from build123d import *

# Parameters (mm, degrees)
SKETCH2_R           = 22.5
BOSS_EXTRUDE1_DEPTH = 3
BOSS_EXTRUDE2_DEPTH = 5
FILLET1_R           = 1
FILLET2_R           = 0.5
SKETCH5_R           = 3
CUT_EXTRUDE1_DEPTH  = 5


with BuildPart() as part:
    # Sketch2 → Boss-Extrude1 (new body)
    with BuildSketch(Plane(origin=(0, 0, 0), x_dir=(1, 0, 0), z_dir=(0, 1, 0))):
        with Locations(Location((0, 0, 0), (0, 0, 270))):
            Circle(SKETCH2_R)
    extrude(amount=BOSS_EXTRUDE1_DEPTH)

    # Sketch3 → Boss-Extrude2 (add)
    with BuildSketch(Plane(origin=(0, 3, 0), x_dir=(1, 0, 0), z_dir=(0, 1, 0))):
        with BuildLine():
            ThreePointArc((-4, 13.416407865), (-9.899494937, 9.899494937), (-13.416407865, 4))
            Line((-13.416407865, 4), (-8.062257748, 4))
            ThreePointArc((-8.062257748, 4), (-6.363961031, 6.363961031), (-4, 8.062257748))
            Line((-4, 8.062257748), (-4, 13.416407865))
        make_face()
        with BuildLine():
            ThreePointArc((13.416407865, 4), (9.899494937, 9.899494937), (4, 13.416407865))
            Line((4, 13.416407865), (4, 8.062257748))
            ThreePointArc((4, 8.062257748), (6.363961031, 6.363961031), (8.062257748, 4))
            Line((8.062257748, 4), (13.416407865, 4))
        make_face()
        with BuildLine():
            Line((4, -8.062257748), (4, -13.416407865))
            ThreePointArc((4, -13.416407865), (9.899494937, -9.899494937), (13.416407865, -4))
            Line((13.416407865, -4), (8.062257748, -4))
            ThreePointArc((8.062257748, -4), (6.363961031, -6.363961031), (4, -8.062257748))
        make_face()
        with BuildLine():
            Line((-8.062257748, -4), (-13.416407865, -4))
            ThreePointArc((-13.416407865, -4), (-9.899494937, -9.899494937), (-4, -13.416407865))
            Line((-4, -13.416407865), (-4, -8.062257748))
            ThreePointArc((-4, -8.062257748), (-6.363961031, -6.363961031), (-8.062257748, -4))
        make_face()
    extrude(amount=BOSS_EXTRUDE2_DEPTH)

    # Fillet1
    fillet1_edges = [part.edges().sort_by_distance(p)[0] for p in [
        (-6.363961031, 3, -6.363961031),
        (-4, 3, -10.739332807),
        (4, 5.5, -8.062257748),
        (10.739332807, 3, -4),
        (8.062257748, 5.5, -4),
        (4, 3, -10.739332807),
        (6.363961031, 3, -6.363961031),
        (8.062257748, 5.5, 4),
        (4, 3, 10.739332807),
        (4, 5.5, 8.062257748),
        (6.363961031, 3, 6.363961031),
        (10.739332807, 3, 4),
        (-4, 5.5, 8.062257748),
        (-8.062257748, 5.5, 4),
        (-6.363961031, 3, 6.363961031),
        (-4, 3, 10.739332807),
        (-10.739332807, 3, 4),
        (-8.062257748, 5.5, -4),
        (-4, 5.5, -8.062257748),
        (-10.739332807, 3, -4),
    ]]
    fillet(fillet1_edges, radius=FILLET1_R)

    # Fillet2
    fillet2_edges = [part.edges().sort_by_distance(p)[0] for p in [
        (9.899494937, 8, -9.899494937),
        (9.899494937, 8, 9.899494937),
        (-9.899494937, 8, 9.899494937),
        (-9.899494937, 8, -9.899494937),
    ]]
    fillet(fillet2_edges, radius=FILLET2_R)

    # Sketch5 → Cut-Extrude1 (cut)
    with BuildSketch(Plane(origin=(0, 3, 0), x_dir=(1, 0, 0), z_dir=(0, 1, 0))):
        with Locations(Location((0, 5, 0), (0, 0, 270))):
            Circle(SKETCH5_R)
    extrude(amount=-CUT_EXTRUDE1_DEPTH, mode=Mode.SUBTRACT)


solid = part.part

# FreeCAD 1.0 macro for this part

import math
import FreeCAD as App
import Part
import Sketcher
Q = App.Units.Quantity


def edges_at(feature, points):
    """Names of the edges that pass closest to the given points."""
    edges = feature.Shape.Edges
    near = lambda p: min(range(len(edges)), key=lambda i: edges[i].distToShape(Part.Vertex(*p))[0])
    return sorted({f"Edge{near(p) + 1}" for p in points})

doc = App.newDocument("Part")
params = doc.addObject("Spreadsheet::Sheet", "Params")
for row, (alias, value) in enumerate([
    ("sketch1_diameter", "45 mm"),
    ("pad1_length", "3 mm"),
    ("sketch2_radius", "14 mm"),
    ("sketch2_radius2", "9 mm"),
    ("pad2_length", "5 mm"),
    ("fillet_radius", "1 mm"),
    ("fillet2_radius", "0.5 mm"),
    ("sketch3_diameter", "6 mm"),
    ("pocket1_length", "5 mm"),
], start=1):
    params.set(f"A{row}", alias)
    params.set(f"B{row}", "=" + value)
    params.setAlias(f"B{row}", alias)

body = doc.addObject("PartDesign::Body", "Body")

# Sketch on XZ plane
sketch1 = body.newObject("Sketcher::SketchObject", "Sketch")
sketch1.AttachmentSupport = (doc.getObject("XZ_Plane"), [""])
sketch1.MapMode = "FlatFace"
sketch1.addGeometry(Part.Circle(App.Vector(0, 0, 0), App.Vector(0, 0, 1), 22), False)
sketch1.addConstraint(Sketcher.Constraint("Coincident", 0, 3, -1, 1))
sketch1.addConstraint(Sketcher.Constraint("Diameter", 0, Q("45 mm")))
sketch1.setExpression("Constraints[1]", "Params.sketch1_diameter")
pad1 = body.newObject("PartDesign::Pad", "Pad")
pad1.Profile = sketch1
pad1.setExpression("Length", "Params.pad1_length")
pad1.Reversed = True

# Sketch on XZ plane
sketch2 = body.newObject("Sketcher::SketchObject", "Sketch001")
sketch2.AttachmentSupport = (doc.getObject("XZ_Plane"), [""])
sketch2.MapMode = "FlatFace"
sketch2.AttachmentOffset = App.Placement(App.Vector(0, 0, -3), App.Rotation())
sketch2.addGeometry(Part.ArcOfCircle(Part.Circle(App.Vector(0, 0, 0), App.Vector(0, 0, 1), 14), math.radians(-163), math.radians(-107)), False)
sketch2.addGeometry(Part.LineSegment(App.Vector(-13, -4, 0), App.Vector(-8, -4, 0)), False)
sketch2.addGeometry(Part.ArcOfCircle(Part.Circle(App.Vector(0, 0, 0), App.Vector(0, 0, 1), 9), math.radians(-154), math.radians(-116)), False)
sketch2.addGeometry(Part.LineSegment(App.Vector(-4, -8, 0), App.Vector(-4, -13, 0)), False)
sketch2.addGeometry(Part.ArcOfCircle(Part.Circle(App.Vector(0, 0, 0), App.Vector(0, 0, 1), 14), math.radians(-73), math.radians(-17)), False)
sketch2.addGeometry(Part.LineSegment(App.Vector(4, -13, 0), App.Vector(4, -8, 0)), False)
sketch2.addGeometry(Part.ArcOfCircle(Part.Circle(App.Vector(0, 0, 0), App.Vector(0, 0, 1), 9), math.radians(-64), math.radians(-26)), False)
sketch2.addGeometry(Part.LineSegment(App.Vector(8, -4, 0), App.Vector(13, -4, 0)), False)
sketch2.addGeometry(Part.LineSegment(App.Vector(4, 8, 0), App.Vector(4, 13, 0)), False)
sketch2.addGeometry(Part.ArcOfCircle(Part.Circle(App.Vector(0, 0, 0), App.Vector(0, 0, 1), 14), math.radians(17), math.radians(73)), False)
sketch2.addGeometry(Part.LineSegment(App.Vector(13, 4, 0), App.Vector(8, 4, 0)), False)
sketch2.addGeometry(Part.ArcOfCircle(Part.Circle(App.Vector(0, 0, 0), App.Vector(0, 0, 1), 9), math.radians(26), math.radians(64)), False)
sketch2.addGeometry(Part.LineSegment(App.Vector(-8, 4, 0), App.Vector(-13, 4, 0)), False)
sketch2.addGeometry(Part.ArcOfCircle(Part.Circle(App.Vector(0, 0, 0), App.Vector(0, 0, 1), 14), math.radians(107), math.radians(163)), False)
sketch2.addGeometry(Part.LineSegment(App.Vector(-4, 13, 0), App.Vector(-4, 8, 0)), False)
sketch2.addGeometry(Part.ArcOfCircle(Part.Circle(App.Vector(0, 0, 0), App.Vector(0, 0, 1), 9), math.radians(116), math.radians(154)), False)
sketch2.addConstraint(Sketcher.Constraint("Coincident", 0, 1, 1, 1))
sketch2.addConstraint(Sketcher.Constraint("Coincident", 1, 2, 2, 1))
sketch2.addConstraint(Sketcher.Constraint("Coincident", 2, 2, 3, 1))
sketch2.addConstraint(Sketcher.Constraint("Coincident", 3, 2, 0, 2))
sketch2.addConstraint(Sketcher.Constraint("Coincident", 4, 1, 5, 1))
sketch2.addConstraint(Sketcher.Constraint("Coincident", 5, 2, 6, 1))
sketch2.addConstraint(Sketcher.Constraint("Coincident", 6, 2, 7, 1))
sketch2.addConstraint(Sketcher.Constraint("Coincident", 7, 2, 4, 2))
sketch2.addConstraint(Sketcher.Constraint("Coincident", 8, 2, 9, 2))
sketch2.addConstraint(Sketcher.Constraint("Coincident", 9, 1, 10, 1))
sketch2.addConstraint(Sketcher.Constraint("Coincident", 10, 2, 11, 1))
sketch2.addConstraint(Sketcher.Constraint("Coincident", 11, 2, 8, 1))
sketch2.addConstraint(Sketcher.Constraint("Coincident", 12, 2, 13, 2))
sketch2.addConstraint(Sketcher.Constraint("Coincident", 13, 1, 14, 1))
sketch2.addConstraint(Sketcher.Constraint("Coincident", 14, 2, 15, 1))
sketch2.addConstraint(Sketcher.Constraint("Coincident", 15, 2, 12, 1))
sketch2.addConstraint(Sketcher.Constraint("Horizontal", 1))
sketch2.addConstraint(Sketcher.Constraint("Vertical", 3))
sketch2.addConstraint(Sketcher.Constraint("Vertical", 5))
sketch2.addConstraint(Sketcher.Constraint("Horizontal", 7))
sketch2.addConstraint(Sketcher.Constraint("Vertical", 8))
sketch2.addConstraint(Sketcher.Constraint("Horizontal", 10))
sketch2.addConstraint(Sketcher.Constraint("Horizontal", 12))
sketch2.addConstraint(Sketcher.Constraint("Vertical", 14))
sketch2.addConstraint(Sketcher.Constraint("Coincident", 0, 3, -1, 1))
sketch2.addConstraint(Sketcher.Constraint("Coincident", 2, 3, -1, 1))
sketch2.addConstraint(Sketcher.Constraint("Coincident", 4, 3, -1, 1))
sketch2.addConstraint(Sketcher.Constraint("Coincident", 6, 3, -1, 1))
sketch2.addConstraint(Sketcher.Constraint("Coincident", 9, 3, -1, 1))
sketch2.addConstraint(Sketcher.Constraint("Coincident", 11, 3, -1, 1))
sketch2.addConstraint(Sketcher.Constraint("Coincident", 13, 3, -1, 1))
sketch2.addConstraint(Sketcher.Constraint("Coincident", 15, 3, -1, 1))
sketch2.addConstraint(Sketcher.Constraint("Equal", 0, 4))
sketch2.addConstraint(Sketcher.Constraint("Equal", 2, 6))
sketch2.addConstraint(Sketcher.Constraint("Equal", 4, 9))
sketch2.addConstraint(Sketcher.Constraint("Equal", 6, 11))
sketch2.addConstraint(Sketcher.Constraint("Equal", 9, 13))
sketch2.addConstraint(Sketcher.Constraint("Equal", 11, 15))
sketch2.addConstraint(Sketcher.Constraint("Horizontal", 3, 2, 4, 1))
sketch2.addConstraint(Sketcher.Constraint("Horizontal", 1, 2, 6, 2))
sketch2.addConstraint(Sketcher.Constraint("Horizontal", 10, 2, 12, 2))
sketch2.addConstraint(Sketcher.Constraint("Horizontal", 8, 2, 13, 1))
sketch2.addConstraint(Sketcher.Constraint("Vertical", 5, 2, 8, 2))
sketch2.addConstraint(Sketcher.Constraint("Vertical", 7, 2, 9, 1))
sketch2.addConstraint(Sketcher.Constraint("Equal", 12, 3))
sketch2.addConstraint(Sketcher.Constraint("Radius", 0, Q("14 mm")))
sketch2.addConstraint(Sketcher.Constraint("Radius", 2, Q("9 mm")))
sketch2.addConstraint(Sketcher.Constraint("DistanceY", 0, 1, -1, 1, Q("4 mm")))
sketch2.setExpression("Constraints[45]", "Params.sketch2_radius")
sketch2.setExpression("Constraints[46]", "Params.sketch2_radius2")
pad2 = body.newObject("PartDesign::Pad", "Pad001")
pad2.Profile = sketch2
pad2.setExpression("Length", "Params.pad2_length")
pad2.Reversed = True
doc.recompute()

fillet = body.newObject("PartDesign::Fillet", "Fillet")
fillet.Base = (pad2, edges_at(pad2, [
    (-6.364, 3, -6.364),
    (-4, 3, -10.739),
    (4, 5.5, -8.062),
    (10.739, 3, -4),
    (8.062, 5.5, -4),
    (4, 3, -10.739),
    (6.364, 3, -6.364),
    (8.062, 5.5, 4),
    (4, 3, 10.739),
    (4, 5.5, 8.062),
    (6.364, 3, 6.364),
    (10.739, 3, 4),
    (-4, 5.5, 8.062),
    (-8.062, 5.5, 4),
    (-6.364, 3, 6.364),
    (-4, 3, 10.739),
    (-10.739, 3, 4),
    (-8.062, 5.5, -4),
    (-4, 5.5, -8.062),
    (-10.739, 3, -4),
]))
fillet.setExpression("Radius", "Params.fillet_radius")
doc.recompute()

fillet2 = body.newObject("PartDesign::Fillet", "Fillet001")
fillet2.Base = (fillet, edges_at(fillet, [
    (9.899, 8, -9.899),
    (9.899, 8, 9.899),
    (-9.899, 8, 9.899),
    (-9.899, 8, -9.899),
]))
fillet2.setExpression("Radius", "Params.fillet2_radius")

# Sketch on XZ plane
sketch3 = body.newObject("Sketcher::SketchObject", "Sketch002")
sketch3.AttachmentSupport = (doc.getObject("XZ_Plane"), [""])
sketch3.MapMode = "FlatFace"
sketch3.AttachmentOffset = App.Placement(App.Vector(0, 0, -3), App.Rotation())
sketch3.addGeometry(Part.Circle(App.Vector(0, -5, 0), App.Vector(0, 0, 1), 3), False)
sketch3.addConstraint(Sketcher.Constraint("PointOnObject", 0, 3, -2))
sketch3.addConstraint(Sketcher.Constraint("Diameter", 0, Q("6 mm")))
sketch3.addConstraint(Sketcher.Constraint("DistanceY", 0, 3, -1, 1, Q("5 mm")))
sketch3.setExpression("Constraints[1]", "Params.sketch3_diameter")
pocket1 = body.newObject("PartDesign::Pocket", "Pocket")
pocket1.Profile = sketch3
pocket1.setExpression("Length", "Params.pocket1_length")
pocket1.Reversed = True

doc.recompute()
